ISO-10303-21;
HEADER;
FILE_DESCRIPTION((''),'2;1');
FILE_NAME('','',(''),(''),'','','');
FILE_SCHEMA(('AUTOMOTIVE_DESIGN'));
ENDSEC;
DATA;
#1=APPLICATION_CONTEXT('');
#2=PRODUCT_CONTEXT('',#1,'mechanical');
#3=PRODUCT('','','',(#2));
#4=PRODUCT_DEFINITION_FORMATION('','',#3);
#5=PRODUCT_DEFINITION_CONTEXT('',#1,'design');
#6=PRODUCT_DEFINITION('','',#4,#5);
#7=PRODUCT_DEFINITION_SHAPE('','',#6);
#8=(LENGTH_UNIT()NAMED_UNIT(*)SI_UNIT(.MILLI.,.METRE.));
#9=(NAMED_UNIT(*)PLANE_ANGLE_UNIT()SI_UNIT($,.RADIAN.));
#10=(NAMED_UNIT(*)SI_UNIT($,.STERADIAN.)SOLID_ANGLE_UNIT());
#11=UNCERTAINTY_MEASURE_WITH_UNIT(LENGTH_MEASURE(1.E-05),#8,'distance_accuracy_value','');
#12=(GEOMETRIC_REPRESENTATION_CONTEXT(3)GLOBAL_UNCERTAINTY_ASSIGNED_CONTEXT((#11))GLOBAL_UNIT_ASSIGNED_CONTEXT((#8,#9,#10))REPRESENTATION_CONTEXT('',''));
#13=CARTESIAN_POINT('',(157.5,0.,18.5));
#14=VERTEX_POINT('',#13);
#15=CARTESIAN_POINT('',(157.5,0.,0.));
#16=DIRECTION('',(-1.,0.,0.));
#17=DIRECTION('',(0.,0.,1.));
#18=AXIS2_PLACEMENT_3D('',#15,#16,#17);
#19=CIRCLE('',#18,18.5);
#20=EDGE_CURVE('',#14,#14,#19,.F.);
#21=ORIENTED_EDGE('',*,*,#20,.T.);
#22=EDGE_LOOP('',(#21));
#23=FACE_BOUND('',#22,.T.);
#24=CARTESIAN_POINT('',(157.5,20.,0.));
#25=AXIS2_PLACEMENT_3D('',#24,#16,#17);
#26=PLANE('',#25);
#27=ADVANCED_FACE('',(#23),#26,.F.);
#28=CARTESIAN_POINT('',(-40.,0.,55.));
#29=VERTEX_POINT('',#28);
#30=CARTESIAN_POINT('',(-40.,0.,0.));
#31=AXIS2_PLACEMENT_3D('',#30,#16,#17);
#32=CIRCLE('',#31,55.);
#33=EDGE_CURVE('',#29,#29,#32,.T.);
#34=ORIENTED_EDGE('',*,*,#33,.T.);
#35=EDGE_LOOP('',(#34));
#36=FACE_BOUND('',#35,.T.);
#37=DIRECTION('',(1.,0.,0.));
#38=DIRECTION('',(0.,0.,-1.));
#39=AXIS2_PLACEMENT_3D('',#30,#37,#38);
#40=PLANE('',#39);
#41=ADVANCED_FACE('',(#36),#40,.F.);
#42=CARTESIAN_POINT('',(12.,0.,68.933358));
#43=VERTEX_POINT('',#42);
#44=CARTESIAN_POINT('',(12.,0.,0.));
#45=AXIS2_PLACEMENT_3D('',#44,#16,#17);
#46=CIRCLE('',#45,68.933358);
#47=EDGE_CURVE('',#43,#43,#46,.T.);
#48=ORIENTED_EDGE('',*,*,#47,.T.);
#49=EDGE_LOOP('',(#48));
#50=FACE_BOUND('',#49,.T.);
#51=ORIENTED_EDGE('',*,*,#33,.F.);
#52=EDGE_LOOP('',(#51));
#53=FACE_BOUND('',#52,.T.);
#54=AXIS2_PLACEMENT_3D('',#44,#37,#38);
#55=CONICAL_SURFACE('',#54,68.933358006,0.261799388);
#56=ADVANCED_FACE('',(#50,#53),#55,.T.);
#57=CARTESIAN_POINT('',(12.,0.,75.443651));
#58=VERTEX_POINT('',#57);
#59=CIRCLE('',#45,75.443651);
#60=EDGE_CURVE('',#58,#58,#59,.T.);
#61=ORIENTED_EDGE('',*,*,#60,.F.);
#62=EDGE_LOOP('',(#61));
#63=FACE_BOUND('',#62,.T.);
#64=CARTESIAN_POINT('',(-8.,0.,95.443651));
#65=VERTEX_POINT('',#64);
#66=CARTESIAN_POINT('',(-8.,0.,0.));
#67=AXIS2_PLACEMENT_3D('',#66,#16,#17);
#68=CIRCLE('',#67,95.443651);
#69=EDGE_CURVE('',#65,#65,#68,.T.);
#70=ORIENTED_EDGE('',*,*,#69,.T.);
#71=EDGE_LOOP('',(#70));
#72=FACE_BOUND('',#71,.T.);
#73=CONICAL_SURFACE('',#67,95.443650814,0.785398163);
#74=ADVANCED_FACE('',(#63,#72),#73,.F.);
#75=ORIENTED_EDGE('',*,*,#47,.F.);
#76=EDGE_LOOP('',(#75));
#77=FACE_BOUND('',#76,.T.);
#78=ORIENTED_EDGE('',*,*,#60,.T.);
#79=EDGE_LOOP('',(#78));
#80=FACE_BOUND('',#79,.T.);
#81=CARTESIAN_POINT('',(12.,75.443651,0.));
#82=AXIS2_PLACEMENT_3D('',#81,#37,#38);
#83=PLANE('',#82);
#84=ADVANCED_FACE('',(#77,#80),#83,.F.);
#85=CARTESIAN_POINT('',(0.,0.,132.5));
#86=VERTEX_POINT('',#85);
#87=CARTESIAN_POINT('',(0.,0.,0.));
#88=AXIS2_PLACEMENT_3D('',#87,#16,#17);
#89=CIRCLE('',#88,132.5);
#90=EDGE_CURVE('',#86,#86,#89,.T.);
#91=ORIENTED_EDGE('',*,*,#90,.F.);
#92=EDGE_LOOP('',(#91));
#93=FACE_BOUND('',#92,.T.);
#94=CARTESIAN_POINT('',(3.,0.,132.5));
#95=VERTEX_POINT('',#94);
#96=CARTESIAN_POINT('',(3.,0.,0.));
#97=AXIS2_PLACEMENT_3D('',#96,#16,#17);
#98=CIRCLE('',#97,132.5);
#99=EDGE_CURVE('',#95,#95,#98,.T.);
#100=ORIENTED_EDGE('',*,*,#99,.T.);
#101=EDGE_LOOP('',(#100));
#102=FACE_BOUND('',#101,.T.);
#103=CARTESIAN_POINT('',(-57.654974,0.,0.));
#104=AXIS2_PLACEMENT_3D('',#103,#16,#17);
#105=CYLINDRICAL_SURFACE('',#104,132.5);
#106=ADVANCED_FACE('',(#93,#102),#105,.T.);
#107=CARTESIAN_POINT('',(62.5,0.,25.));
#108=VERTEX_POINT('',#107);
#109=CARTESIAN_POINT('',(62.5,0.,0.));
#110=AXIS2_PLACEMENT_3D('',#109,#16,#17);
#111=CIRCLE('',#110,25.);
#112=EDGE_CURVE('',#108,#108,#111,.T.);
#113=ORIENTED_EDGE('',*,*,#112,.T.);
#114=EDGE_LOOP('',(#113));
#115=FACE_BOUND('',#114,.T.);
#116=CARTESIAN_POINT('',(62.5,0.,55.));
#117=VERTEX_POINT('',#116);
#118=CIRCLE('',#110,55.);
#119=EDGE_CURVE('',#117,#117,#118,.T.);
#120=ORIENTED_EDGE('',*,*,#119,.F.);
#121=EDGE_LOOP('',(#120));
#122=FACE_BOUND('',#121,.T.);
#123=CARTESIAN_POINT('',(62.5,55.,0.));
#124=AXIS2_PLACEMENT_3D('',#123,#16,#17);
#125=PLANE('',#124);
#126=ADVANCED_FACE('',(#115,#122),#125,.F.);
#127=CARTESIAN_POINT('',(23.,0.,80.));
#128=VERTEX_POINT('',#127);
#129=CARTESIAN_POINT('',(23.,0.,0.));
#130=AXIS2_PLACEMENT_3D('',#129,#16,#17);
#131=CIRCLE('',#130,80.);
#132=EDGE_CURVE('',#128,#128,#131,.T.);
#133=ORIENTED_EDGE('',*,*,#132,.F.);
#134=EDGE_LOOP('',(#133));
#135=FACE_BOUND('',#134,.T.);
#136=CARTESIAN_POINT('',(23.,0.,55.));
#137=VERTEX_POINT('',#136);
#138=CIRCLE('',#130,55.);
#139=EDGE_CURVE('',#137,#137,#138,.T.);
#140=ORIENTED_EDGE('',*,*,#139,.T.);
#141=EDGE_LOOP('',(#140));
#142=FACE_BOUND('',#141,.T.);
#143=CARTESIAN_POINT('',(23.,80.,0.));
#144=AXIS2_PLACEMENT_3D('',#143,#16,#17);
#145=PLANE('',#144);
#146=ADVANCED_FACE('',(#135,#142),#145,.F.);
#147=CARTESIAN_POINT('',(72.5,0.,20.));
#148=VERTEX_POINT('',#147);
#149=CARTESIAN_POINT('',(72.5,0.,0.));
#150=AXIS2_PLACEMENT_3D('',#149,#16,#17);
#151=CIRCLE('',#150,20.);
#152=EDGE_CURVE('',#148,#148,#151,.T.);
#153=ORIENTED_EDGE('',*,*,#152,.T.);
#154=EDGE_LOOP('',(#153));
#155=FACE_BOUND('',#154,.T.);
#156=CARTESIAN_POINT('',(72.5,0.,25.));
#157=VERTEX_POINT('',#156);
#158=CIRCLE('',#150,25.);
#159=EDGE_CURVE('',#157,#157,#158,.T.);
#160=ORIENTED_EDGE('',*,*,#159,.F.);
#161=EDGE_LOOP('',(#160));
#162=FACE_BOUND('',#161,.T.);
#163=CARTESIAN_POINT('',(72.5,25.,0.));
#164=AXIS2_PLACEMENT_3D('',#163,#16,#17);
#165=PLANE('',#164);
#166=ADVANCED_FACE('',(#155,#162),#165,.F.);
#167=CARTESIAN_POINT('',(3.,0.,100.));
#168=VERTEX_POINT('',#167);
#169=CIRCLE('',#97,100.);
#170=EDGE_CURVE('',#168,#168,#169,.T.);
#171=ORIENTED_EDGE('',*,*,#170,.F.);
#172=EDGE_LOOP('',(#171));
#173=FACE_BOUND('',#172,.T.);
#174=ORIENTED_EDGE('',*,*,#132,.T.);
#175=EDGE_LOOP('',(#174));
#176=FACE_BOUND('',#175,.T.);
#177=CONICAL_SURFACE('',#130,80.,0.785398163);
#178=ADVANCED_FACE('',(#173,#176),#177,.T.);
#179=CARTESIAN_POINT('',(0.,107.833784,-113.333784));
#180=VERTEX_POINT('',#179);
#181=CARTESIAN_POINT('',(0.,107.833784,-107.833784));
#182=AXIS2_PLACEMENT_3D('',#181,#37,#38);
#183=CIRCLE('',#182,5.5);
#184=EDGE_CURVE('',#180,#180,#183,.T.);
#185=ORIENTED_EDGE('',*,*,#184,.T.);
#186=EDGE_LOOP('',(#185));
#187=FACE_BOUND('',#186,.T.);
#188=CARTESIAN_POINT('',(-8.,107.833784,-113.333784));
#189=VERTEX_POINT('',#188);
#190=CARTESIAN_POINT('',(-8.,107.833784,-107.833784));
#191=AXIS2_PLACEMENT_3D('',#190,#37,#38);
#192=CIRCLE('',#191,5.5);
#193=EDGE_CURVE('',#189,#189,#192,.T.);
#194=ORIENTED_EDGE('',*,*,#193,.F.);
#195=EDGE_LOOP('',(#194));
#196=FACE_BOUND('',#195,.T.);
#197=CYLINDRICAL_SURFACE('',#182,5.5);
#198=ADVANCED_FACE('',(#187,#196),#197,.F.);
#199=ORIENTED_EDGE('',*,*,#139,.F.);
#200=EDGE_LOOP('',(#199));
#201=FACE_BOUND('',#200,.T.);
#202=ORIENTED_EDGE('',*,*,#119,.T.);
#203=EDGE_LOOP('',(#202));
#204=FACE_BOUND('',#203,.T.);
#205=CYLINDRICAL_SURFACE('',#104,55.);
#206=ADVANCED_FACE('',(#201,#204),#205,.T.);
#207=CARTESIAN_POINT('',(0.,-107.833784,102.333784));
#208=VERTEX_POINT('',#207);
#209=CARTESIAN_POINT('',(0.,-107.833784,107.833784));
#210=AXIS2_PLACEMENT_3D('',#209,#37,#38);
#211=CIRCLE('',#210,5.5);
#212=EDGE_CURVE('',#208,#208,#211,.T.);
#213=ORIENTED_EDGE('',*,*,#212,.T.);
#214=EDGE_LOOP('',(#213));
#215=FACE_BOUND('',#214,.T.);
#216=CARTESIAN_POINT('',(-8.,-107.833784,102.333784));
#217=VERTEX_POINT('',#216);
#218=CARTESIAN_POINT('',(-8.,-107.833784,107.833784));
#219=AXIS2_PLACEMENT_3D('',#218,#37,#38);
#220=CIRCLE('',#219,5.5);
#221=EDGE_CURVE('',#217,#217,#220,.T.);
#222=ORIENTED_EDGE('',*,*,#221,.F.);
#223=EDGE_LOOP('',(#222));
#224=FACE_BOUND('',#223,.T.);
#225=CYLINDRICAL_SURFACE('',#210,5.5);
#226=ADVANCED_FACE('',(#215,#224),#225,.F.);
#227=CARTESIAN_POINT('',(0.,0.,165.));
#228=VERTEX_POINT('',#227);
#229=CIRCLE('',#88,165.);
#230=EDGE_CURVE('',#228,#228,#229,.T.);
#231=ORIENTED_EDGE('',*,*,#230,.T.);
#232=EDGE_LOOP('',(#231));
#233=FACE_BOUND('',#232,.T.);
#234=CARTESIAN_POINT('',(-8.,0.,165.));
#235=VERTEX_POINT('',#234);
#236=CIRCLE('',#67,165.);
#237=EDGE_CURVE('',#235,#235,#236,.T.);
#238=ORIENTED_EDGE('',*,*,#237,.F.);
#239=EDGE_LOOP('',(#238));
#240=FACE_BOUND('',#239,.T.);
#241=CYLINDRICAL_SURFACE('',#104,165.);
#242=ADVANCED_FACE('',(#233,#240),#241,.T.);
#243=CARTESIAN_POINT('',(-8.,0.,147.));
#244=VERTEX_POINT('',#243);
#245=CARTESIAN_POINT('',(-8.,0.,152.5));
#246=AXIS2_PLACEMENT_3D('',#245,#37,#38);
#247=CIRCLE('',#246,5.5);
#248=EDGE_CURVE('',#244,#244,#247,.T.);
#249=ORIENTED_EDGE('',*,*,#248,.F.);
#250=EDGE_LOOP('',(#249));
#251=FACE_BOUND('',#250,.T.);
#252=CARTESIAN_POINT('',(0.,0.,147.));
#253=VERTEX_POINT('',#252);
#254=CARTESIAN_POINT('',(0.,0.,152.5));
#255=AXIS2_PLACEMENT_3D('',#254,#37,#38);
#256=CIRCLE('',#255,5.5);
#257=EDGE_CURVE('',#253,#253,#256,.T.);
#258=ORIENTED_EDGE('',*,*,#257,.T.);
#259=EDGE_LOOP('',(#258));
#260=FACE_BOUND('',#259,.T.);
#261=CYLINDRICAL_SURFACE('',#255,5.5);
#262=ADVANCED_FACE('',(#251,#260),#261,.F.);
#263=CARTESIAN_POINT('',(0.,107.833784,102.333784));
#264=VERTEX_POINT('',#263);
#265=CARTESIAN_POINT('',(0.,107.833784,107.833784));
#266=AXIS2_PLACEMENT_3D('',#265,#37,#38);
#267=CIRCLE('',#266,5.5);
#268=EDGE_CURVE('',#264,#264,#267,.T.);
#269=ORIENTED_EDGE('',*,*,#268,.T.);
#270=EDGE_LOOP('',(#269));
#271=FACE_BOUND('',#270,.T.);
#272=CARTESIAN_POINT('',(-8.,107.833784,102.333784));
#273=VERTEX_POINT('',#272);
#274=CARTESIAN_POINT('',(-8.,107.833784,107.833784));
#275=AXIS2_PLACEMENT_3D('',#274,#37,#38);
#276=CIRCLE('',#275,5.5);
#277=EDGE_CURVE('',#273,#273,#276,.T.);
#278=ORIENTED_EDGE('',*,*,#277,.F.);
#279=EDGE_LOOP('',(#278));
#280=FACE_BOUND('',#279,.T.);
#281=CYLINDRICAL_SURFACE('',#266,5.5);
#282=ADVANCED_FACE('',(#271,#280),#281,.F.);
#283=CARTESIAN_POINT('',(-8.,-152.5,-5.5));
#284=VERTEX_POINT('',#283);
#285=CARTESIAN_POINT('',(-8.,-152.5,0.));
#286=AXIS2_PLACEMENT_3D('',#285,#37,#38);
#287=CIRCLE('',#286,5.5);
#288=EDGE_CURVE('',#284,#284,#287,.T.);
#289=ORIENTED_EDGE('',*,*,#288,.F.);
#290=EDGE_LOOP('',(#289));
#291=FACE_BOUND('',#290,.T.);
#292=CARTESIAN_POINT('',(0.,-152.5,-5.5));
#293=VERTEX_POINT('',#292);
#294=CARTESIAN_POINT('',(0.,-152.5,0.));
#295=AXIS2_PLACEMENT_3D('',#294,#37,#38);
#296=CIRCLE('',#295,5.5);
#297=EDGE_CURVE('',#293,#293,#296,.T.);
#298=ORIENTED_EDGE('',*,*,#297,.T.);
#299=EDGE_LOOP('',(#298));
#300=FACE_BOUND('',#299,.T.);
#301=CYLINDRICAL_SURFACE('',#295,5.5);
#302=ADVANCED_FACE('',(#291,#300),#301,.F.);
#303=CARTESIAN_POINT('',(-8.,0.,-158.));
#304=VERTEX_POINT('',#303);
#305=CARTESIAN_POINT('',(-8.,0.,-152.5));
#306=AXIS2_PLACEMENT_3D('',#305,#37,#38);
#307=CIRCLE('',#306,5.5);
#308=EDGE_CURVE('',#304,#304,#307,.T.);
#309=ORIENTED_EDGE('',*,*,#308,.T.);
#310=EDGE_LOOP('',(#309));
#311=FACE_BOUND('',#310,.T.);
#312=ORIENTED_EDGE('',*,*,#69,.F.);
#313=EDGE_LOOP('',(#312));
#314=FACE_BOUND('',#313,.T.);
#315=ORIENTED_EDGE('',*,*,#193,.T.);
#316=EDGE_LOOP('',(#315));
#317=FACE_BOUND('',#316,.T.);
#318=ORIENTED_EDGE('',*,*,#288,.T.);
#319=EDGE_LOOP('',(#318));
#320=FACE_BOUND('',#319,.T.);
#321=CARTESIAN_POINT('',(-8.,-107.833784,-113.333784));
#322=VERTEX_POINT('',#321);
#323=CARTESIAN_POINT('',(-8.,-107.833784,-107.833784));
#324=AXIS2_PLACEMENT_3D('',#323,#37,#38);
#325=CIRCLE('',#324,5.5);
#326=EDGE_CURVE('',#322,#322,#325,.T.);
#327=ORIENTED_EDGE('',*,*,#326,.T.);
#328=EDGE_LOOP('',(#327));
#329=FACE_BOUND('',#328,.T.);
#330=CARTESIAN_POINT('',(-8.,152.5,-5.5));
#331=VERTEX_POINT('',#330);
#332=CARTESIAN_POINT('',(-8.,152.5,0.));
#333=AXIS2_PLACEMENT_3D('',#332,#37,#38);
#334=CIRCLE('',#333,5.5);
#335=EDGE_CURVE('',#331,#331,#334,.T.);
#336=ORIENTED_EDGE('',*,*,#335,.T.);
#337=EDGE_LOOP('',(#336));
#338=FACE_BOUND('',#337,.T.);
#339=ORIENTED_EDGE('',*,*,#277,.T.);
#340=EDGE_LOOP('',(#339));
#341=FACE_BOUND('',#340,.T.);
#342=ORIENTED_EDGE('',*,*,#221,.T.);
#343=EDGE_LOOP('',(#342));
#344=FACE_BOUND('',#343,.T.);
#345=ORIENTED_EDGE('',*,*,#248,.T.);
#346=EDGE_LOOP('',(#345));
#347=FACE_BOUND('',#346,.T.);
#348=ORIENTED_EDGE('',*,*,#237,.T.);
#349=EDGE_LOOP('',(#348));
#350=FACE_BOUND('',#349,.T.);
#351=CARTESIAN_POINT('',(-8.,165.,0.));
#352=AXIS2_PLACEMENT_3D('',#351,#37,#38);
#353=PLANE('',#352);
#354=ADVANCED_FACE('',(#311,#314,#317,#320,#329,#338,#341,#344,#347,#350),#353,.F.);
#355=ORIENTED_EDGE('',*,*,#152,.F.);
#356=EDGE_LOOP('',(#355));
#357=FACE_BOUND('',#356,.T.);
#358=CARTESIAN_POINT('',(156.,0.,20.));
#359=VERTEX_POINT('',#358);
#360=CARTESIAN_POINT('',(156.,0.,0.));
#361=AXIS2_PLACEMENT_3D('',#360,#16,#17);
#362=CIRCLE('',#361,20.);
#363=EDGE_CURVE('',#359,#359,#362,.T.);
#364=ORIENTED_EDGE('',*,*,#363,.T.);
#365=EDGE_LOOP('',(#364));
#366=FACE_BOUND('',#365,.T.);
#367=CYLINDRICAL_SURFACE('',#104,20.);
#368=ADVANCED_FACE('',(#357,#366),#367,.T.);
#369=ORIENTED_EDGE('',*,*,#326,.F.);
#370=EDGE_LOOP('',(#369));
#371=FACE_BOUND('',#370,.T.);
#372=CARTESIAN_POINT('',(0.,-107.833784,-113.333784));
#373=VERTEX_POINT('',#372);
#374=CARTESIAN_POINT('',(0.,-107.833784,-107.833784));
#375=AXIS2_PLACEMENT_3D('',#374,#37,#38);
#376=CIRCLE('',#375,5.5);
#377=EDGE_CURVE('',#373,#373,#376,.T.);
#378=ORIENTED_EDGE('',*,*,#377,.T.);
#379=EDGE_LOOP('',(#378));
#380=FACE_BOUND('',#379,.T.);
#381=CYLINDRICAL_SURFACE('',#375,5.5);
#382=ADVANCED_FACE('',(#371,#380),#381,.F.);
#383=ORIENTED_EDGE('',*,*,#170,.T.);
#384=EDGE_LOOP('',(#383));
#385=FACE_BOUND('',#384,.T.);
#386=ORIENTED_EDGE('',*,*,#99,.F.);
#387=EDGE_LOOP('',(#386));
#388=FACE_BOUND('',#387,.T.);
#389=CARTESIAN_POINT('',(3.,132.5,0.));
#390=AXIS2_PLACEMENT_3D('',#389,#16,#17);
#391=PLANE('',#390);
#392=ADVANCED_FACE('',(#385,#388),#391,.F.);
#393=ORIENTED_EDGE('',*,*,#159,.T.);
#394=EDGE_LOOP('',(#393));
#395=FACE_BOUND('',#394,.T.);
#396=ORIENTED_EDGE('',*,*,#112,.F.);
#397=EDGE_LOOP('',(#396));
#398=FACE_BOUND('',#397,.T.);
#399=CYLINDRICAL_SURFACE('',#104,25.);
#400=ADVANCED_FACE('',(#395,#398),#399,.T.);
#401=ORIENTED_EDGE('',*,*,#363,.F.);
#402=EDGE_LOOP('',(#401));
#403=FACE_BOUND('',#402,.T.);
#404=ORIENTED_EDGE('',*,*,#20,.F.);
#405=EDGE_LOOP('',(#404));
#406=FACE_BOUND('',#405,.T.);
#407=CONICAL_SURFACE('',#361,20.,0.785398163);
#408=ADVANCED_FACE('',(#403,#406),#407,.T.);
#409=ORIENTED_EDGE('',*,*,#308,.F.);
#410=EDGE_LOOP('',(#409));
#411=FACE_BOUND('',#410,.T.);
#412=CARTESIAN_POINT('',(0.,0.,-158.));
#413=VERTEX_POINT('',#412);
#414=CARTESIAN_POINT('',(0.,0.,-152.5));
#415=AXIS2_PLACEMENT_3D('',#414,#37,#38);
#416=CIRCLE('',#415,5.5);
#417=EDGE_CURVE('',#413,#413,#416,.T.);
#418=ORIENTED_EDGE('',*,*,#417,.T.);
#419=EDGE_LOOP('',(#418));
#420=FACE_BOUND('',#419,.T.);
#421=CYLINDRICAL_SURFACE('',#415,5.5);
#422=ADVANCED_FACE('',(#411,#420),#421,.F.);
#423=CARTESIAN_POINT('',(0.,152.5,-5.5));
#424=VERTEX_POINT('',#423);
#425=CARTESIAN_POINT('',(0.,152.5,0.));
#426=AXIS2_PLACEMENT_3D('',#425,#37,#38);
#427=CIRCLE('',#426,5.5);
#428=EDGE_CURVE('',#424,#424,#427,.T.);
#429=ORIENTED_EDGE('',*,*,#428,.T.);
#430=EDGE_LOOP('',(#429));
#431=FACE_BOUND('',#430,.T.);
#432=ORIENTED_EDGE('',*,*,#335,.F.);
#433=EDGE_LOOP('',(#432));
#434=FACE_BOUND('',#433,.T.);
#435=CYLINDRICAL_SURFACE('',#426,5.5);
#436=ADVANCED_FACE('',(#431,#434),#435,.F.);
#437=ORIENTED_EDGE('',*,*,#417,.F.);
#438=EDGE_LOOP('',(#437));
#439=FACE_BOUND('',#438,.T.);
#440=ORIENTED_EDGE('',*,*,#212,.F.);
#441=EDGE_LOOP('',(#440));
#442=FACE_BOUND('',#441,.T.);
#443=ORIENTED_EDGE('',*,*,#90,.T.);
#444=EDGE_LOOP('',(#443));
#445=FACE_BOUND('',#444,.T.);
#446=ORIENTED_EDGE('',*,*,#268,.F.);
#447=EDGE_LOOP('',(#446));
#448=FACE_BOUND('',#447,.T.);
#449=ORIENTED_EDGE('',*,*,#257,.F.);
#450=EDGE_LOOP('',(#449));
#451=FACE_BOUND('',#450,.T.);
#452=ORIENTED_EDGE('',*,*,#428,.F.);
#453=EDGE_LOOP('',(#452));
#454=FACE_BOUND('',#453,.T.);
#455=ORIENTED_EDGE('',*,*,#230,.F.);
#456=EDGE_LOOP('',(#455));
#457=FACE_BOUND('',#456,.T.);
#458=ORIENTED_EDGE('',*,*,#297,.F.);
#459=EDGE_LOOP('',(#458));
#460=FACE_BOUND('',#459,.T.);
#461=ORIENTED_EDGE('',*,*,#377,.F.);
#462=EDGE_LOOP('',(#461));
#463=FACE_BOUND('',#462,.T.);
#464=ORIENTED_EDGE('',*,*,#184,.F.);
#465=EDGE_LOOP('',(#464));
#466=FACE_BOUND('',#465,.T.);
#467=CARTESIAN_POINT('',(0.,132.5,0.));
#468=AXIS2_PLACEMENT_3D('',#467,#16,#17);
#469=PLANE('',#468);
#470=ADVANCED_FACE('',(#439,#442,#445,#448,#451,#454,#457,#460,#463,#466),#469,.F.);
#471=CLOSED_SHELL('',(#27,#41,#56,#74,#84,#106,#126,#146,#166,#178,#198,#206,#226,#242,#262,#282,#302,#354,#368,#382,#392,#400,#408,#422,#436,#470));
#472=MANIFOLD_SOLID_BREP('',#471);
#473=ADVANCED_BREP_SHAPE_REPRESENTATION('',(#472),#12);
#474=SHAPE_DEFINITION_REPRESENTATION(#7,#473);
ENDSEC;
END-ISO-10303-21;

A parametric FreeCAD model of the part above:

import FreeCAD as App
import Part
import Sketcher
from FreeCAD import Vector
Q = App.Units.Quantity


def edges_at(feature, points):
    """Names of the edges that pass closest to the given points."""
    edges = feature.Shape.Edges
    near = lambda p: min(range(len(edges)), key=lambda i: edges[i].distToShape(Part.Vertex(*p))[0])
    return sorted({f"Edge{near(p) + 1}" for p in points})


def add_polygon(sketch, points):
    """Adds a closed chain of lines whose ends are joined by coincident constraints."""
    first, n = sketch.GeometryCount, len(points)
    for a, b in zip(points, points[1:] + points[:1]):
        sketch.addGeometry(Part.LineSegment(App.Vector(*a, 0), App.Vector(*b, 0)), False)
    for i in range(n):
        sketch.addConstraint(Sketcher.Constraint("Coincident", first + i, 2, first + (i + 1) % n, 1))

doc = App.newDocument("Part")
body = doc.addObject("PartDesign::Body", "Body")

# Sketch on XY plane
sketch1 = body.newObject("Sketcher::SketchObject", "Sketch")
sketch1.AttachmentSupport = (doc.getObject("XY_Plane"), [""])
sketch1.MapMode = "FlatFace"
add_polygon(sketch1, [(0, 132.5), (0, 165), (-8, 165), (-8, 95.4), (12, 75.4), (12, 68.9), (-40, 55), (-40, 0), (157.5, 0), (157.5, 20), (72.5, 20), (72.5, 25), (62.5, 25), (62.5, 55), (23, 55), (23, 80), (3, 100), (3, 132.5)])  # lines 0-17
sketch1.addConstraint(Sketcher.Constraint("Vertical", 0))
sketch1.addConstraint(Sketcher.Constraint("Horizontal", 1))
sketch1.addConstraint(Sketcher.Constraint("Vertical", 2))
sketch1.addConstraint(Sketcher.Constraint("Vertical", 4))
sketch1.addConstraint(Sketcher.Constraint("Vertical", 6))
sketch1.addConstraint(Sketcher.Constraint("Horizontal", 7))
sketch1.addConstraint(Sketcher.Constraint("Vertical", 8))
sketch1.addConstraint(Sketcher.Constraint("Horizontal", 9))
sketch1.addConstraint(Sketcher.Constraint("Vertical", 10))
sketch1.addConstraint(Sketcher.Constraint("Horizontal", 11))
sketch1.addConstraint(Sketcher.Constraint("Vertical", 12))
sketch1.addConstraint(Sketcher.Constraint("Horizontal", 13))
sketch1.addConstraint(Sketcher.Constraint("Vertical", 14))
sketch1.addConstraint(Sketcher.Constraint("Vertical", 16))
sketch1.addConstraint(Sketcher.Constraint("Horizontal", 17))
sketch1.addConstraint(Sketcher.Constraint("PointOnObject", 0, 2, -2))
sketch1.addConstraint(Sketcher.Constraint("PointOnObject", 6, 2, -1))
sketch1.addConstraint(Sketcher.Constraint("Parallel", 3, 15))
sketch1.addConstraint(Sketcher.Constraint("Horizontal", 5, 2, 12, 2))
sketch1.addConstraint(Sketcher.Constraint("Equal", 0, 16))
sketch1.addConstraint(Sketcher.Constraint("Equal", 3, 15))
sketch1.addConstraint(Sketcher.Constraint("DistanceX", 1, 2, 1, 1, Q("8 mm")))
sketch1.addConstraint(Sketcher.Constraint("DistanceX", 9, 2, 9, 1, Q("85 mm")))
sketch1.addConstraint(Sketcher.Constraint("DistanceX", 11, 2, 11, 1, Q("10 mm")))
sketch1.addConstraint(Sketcher.Constraint("DistanceX", 17, 2, 17, 1, Q("3 mm")))
sketch1.addConstraint(Sketcher.Constraint("DistanceY", 6, 2, 6, 1, Q("55 mm")))
sketch1.addConstraint(Sketcher.Constraint("DistanceY", 8, 1, 8, 2, Q("20 mm")))
sketch1.addConstraint(Sketcher.Constraint("DistanceY", 10, 1, 10, 2, Q("5 mm")))
sketch1.addConstraint(Sketcher.Constraint("DistanceY", 14, 1, 14, 2, Q("25 mm")))
sketch1.addConstraint(Sketcher.Constraint("Angle", 3, Q("-45 deg")))
sketch1.addConstraint(Sketcher.Constraint("Angle", 5, Q("-165 deg")))
sketch1.addConstraint(Sketcher.Constraint("DistanceX", 7, 1, 7, 2, Q("197.5 mm")))
sketch1.addConstraint(Sketcher.Constraint("DistanceX", 13, 2, 13, 1, Q("39.5 mm")))
sketch1.addConstraint(Sketcher.Constraint("DistanceY", 0, 1, 0, 2, Q("32.5 mm")))
sketch1.addConstraint(Sketcher.Constraint("DistanceY", -1, 1, 0, 2, Q("165 mm")))
sketch1.addConstraint(Sketcher.Constraint("DistanceY", 2, 2, 2, 1, Q("69.556349 mm")))
revolution = body.newObject("PartDesign::Revolution", "Revolution")
revolution.Profile = sketch1
revolution.ReferenceAxis = (sketch1, ["H_Axis"])
revolution.Angle = 360
doc.recompute()

chamfer = body.newObject("PartDesign::Chamfer", "Chamfer")
chamfer.Base = (revolution, edges_at(revolution, [(157.5, 0, -20)]))
chamfer.Size = 1.5

# Sketch on YZ plane
sketch2 = body.newObject("Sketcher::SketchObject", "Sketch001")
sketch2.AttachmentSupport = (doc.getObject("YZ_Plane"), [""])
sketch2.MapMode = "FlatFace"
sketch2.addGeometry(Part.Circle(Vector(152, 0, 0), Vector(0, 0, 1), 6), False)
sketch2.addConstraint(Sketcher.Constraint("PointOnObject", 0, 3, -1))
sketch2.addConstraint(Sketcher.Constraint("Diameter", 0, Q("11 mm")))
sketch2.addConstraint(Sketcher.Constraint("DistanceX", -1, 1, 0, 3, Q("152.5 mm")))
doc.recompute()
hole = body.newObject("PartDesign::Hole", "Hole")
hole.Profile = sketch2
hole.ThreadType = "None"
hole.Diameter = 11
hole.DepthType = "ThroughAll"
doc.recompute()

polarpattern = body.newObject("PartDesign::PolarPattern", "PolarPattern")
polarpattern.Originals = [hole]
polarpattern.Axis = (doc.getObject("X_Axis"), [""])
polarpattern.Angle = 360
polarpattern.Occurrences = 8
body.Tip = polarpattern

doc.recompute()
